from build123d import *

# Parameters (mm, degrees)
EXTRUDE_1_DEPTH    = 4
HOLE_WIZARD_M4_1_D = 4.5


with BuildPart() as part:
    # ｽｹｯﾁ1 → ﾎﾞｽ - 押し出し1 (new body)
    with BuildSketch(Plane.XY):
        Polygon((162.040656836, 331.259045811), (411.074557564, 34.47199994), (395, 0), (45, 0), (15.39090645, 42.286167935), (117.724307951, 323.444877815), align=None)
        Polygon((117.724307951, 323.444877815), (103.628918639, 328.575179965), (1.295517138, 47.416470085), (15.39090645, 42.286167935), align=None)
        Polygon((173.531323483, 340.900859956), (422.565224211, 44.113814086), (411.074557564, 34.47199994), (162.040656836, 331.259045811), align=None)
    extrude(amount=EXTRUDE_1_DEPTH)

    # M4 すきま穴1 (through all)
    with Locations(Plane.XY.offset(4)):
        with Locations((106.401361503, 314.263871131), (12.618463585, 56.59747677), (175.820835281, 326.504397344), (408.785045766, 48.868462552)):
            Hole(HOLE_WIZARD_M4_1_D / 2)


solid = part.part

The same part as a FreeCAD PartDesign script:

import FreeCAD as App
import Part
import Sketcher
Q = App.Units.Quantity

doc = App.newDocument("Part")
body = doc.addObject("PartDesign::Body", "Body")

# Sketch on XY plane
sketch1 = doc.addObject("Sketcher::SketchObject", "Sketch")
body.addObject(sketch1)
sketch1.AttachmentSupport = (doc.XY_Plane, [""])
sketch1.MapMode = "FlatFace"
sketch1.addGeometry(Part.LineSegment(App.Vector(395, 0, 0), App.Vector(411, 34, 0)), False)
sketch1.addGeometry(Part.LineSegment(App.Vector(411, 34, 0), App.Vector(423, 44, 0)), False)
sketch1.addGeometry(Part.LineSegment(App.Vector(423, 44, 0), App.Vector(174, 341, 0)), False)
sketch1.addGeometry(Part.LineSegment(App.Vector(174, 341, 0), App.Vector(162, 331, 0)), False)
sketch1.addGeometry(Part.LineSegment(App.Vector(162, 331, 0), App.Vector(118, 323, 0)), False)
sketch1.addGeometry(Part.LineSegment(App.Vector(118, 323, 0), App.Vector(104, 329, 0)), False)
sketch1.addGeometry(Part.LineSegment(App.Vector(104, 329, 0), App.Vector(1, 47, 0)), False)
sketch1.addGeometry(Part.LineSegment(App.Vector(1, 47, 0), App.Vector(15, 42, 0)), False)
sketch1.addGeometry(Part.LineSegment(App.Vector(15, 42, 0), App.Vector(45, 0, 0)), False)
sketch1.addGeometry(Part.LineSegment(App.Vector(45, 0, 0), App.Vector(395, 0, 0)), False)
sketch1.addConstraint(Sketcher.Constraint("Coincident", 0, 2, 1, 1))
sketch1.addConstraint(Sketcher.Constraint("Coincident", 1, 2, 2, 1))
sketch1.addConstraint(Sketcher.Constraint("Coincident", 2, 2, 3, 1))
sketch1.addConstraint(Sketcher.Constraint("Coincident", 3, 2, 4, 1))
sketch1.addConstraint(Sketcher.Constraint("Coincident", 4, 2, 5, 1))
sketch1.addConstraint(Sketcher.Constraint("Coincident", 5, 2, 6, 1))
sketch1.addConstraint(Sketcher.Constraint("Coincident", 6, 2, 7, 1))
sketch1.addConstraint(Sketcher.Constraint("Coincident", 7, 2, 8, 1))
sketch1.addConstraint(Sketcher.Constraint("Coincident", 8, 2, 9, 1))
sketch1.addConstraint(Sketcher.Constraint("Coincident", 9, 2, 0, 1))
sketch1.addConstraint(Sketcher.Constraint("Horizontal", 9))
sketch1.addConstraint(Sketcher.Constraint("PointOnObject", 8, 2, -1))
sketch1.addConstraint(Sketcher.Constraint("Perpendicular", 1, 2))
sketch1.addConstraint(Sketcher.Constraint("Perpendicular", 2, 3))
sketch1.addConstraint(Sketcher.Constraint("Perpendicular", 5, 6))
sketch1.addConstraint(Sketcher.Constraint("Perpendicular", 6, 7))
sketch1.addConstraint(Sketcher.Constraint("Equal", 1, 3))
sketch1.addConstraint(Sketcher.Constraint("Equal", 3, 5))
sketch1.addConstraint(Sketcher.Constraint("Equal", 5, 7))
sketch1.addConstraint(Sketcher.Constraint("DistanceX", 9, 1, 9, 2, 350.0))
sketch1.addConstraint(Sketcher.Constraint("Angle", 0, Q("65 deg")))
sketch1.addConstraint(Sketcher.Constraint("Angle", 1, Q("40 deg")))
sketch1.addConstraint(Sketcher.Constraint("Angle", 4, Q("-170 deg")))
sketch1.addConstraint(Sketcher.Constraint("Angle", 5, Q("160 deg")))
sketch1.addConstraint(Sketcher.Constraint("Angle", 8, Q("-55 deg")))
sketch1.addConstraint(Sketcher.Constraint("Distance", 1, 15.0))
sketch1.addConstraint(Sketcher.Constraint("Distance", 4, 45.0))
sketch1.addConstraint(Sketcher.Constraint("DistanceX", -1, 1, 8, 2, 45.0))
sketch1.addConstraint(Sketcher.Constraint("DistanceY", -1, 1, 0, 2, 34.472))
sketch1.addConstraint(Sketcher.Constraint("DistanceX", 2, 2, 1, 2, 249.033901))
pad1 = doc.addObject("PartDesign::Pad", "Pad")
body.addObject(pad1)
pad1.Profile = sketch1
pad1.Length = 4

# Sketch on XY plane
sketch2 = doc.addObject("Sketcher::SketchObject", "Sketch001")
body.addObject(sketch2)
sketch2.AttachmentSupport = (doc.XY_Plane, [""])
sketch2.MapMode = "FlatFace"
sketch2.AttachmentOffset = App.Placement(App.Vector(0, 0, 4), App.Rotation())
sketch2.addGeometry(Part.Circle(App.Vector(106.4, 314.3, 0), App.Vector(0, 0, 1), 2.2), False)
sketch2.addGeometry(Part.Circle(App.Vector(12.6, 56.6, 0), App.Vector(0, 0, 1), 2.2), False)
sketch2.addGeometry(Part.Circle(App.Vector(175.8, 326.5, 0), App.Vector(0, 0, 1), 2.2), False)
sketch2.addGeometry(Part.Circle(App.Vector(408.8, 48.9, 0), App.Vector(0, 0, 1), 2.2), False)
sketch2.addConstraint(Sketcher.Constraint("Equal", 0, 1))
sketch2.addConstraint(Sketcher.Constraint("Equal", 1, 2))
sketch2.addConstraint(Sketcher.Constraint("Equal", 2, 3))
sketch2.addConstraint(Sketcher.Constraint("Diameter", 0, 4.5))
sketch2.addConstraint(Sketcher.Constraint("DistanceX", -1, 1, 0, 3, 106.401362))
sketch2.addConstraint(Sketcher.Constraint("DistanceY", -1, 1, 0, 3, 314.263871))
sketch2.addConstraint(Sketcher.Constraint("DistanceX", 1, 3, 2, 3, 163.202372))
sketch2.addConstraint(Sketcher.Constraint("DistanceY", 1, 3, 2, 3, 269.906921))
sketch2.addConstraint(Sketcher.Constraint("DistanceX", 2, 3, 3, 3, 232.96421))
sketch2.addConstraint(Sketcher.Constraint("DistanceY", 3, 3, 0, 3, 265.395409))
sketch2.addConstraint(Sketcher.Constraint("DistanceX", -1, 1, 1, 3, 12.618464))
sketch2.addConstraint(Sketcher.Constraint("DistanceY", -1, 1, 1, 3, 56.597477))
doc.recompute()
hole = doc.addObject("PartDesign::Hole", "Hole")
body.addObject(hole)
hole.Profile = sketch2
hole.ThreadType = "None"
hole.Diameter = 4.5
hole.DepthType = "ThroughAll"

doc.recompute()
